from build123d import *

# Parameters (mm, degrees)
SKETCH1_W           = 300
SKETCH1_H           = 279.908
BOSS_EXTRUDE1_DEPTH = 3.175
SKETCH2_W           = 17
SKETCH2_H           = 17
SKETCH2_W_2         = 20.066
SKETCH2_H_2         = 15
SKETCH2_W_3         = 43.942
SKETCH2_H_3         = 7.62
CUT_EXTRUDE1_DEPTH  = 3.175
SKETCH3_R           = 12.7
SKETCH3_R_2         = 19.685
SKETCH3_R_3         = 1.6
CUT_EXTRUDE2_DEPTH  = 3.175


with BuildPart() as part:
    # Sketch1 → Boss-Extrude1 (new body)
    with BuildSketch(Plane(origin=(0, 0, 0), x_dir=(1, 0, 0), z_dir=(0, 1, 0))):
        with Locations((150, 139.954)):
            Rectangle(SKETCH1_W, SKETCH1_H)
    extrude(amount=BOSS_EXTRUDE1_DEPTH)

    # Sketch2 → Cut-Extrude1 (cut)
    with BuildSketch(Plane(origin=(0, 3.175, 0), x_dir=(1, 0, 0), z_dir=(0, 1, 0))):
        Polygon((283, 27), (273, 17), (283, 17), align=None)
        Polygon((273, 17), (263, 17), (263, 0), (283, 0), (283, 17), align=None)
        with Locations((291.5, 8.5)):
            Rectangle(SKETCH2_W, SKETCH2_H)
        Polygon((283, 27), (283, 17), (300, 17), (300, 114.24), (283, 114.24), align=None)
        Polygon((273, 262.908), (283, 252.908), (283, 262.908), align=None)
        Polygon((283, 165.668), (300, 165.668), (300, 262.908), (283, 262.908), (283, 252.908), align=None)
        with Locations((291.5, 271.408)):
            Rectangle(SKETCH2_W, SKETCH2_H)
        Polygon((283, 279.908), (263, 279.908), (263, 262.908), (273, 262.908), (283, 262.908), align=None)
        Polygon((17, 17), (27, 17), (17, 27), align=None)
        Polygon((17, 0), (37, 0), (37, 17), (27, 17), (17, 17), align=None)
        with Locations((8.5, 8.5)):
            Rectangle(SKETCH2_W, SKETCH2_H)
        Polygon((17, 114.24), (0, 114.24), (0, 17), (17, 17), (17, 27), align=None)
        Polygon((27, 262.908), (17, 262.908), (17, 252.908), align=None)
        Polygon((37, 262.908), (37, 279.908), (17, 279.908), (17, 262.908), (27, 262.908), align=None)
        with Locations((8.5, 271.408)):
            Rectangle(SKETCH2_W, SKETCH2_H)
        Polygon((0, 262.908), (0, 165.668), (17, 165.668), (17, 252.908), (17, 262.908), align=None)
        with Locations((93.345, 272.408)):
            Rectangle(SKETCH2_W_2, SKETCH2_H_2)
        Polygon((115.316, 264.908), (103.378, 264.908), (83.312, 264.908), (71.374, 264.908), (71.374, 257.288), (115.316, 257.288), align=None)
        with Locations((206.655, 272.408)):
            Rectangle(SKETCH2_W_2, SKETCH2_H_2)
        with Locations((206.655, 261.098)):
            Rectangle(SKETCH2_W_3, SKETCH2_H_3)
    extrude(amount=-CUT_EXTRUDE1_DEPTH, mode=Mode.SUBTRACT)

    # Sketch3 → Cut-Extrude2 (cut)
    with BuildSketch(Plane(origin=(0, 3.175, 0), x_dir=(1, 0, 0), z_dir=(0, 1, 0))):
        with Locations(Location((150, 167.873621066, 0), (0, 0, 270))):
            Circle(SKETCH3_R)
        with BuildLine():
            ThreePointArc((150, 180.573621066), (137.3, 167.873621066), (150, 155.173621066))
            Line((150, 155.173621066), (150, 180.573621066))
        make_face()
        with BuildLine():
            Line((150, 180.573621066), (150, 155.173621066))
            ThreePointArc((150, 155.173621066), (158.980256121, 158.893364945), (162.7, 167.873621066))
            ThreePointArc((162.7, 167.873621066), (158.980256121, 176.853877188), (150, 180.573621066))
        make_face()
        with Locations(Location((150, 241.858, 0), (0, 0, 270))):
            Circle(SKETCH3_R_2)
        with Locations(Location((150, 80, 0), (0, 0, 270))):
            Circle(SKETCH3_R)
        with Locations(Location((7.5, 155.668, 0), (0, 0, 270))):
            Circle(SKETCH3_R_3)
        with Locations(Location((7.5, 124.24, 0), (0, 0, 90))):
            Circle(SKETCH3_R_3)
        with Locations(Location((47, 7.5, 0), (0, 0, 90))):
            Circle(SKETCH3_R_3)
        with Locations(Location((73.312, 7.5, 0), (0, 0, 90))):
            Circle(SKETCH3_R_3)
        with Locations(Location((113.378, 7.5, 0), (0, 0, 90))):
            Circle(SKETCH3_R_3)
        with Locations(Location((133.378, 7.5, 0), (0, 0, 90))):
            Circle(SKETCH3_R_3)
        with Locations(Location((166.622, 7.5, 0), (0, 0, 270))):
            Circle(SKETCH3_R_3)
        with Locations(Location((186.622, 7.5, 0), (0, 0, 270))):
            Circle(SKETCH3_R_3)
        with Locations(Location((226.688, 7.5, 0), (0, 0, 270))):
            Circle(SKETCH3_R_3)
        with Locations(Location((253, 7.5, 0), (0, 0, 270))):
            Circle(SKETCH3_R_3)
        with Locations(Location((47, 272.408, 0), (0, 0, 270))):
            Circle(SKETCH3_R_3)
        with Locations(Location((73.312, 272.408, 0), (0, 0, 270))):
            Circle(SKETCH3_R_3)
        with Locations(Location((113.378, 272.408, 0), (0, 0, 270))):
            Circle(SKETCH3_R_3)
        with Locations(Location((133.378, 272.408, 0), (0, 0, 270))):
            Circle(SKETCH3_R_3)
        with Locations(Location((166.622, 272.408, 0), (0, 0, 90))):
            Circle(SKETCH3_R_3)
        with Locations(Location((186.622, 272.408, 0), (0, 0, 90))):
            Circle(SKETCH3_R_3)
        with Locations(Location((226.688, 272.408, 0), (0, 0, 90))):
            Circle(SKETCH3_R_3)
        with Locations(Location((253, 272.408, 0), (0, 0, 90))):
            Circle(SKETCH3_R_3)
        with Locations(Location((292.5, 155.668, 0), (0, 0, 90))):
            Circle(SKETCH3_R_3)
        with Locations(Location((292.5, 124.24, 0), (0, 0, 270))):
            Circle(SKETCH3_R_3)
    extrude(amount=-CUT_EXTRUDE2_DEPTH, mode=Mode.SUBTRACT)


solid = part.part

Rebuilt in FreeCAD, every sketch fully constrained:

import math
import FreeCAD as App
import Part
import Sketcher

V = App.Vector
Q = App.Units.Quantity


def add_polygon(sketch, points):
    """Adds a closed chain of lines whose ends are joined by coincident constraints."""
    first, n = sketch.GeometryCount, len(points)
    for a, b in zip(points, points[1:] + points[:1]):
        sketch.addGeometry(Part.LineSegment(App.Vector(*a, 0), App.Vector(*b, 0)), False)
    for i in range(n):
        sketch.addConstraint(Sketcher.Constraint("Coincident", first + i, 2, first + (i + 1) % n, 1))

doc = App.newDocument("Part")
body = doc.addObject("PartDesign::Body", "Body")

sketch1 = body.newObject("Sketcher::SketchObject", "Sketch")
sketch1.AttachmentSupport = (doc.getObject("XZ_Plane"), [""])
sketch1.MapMode = "FlatFace"
add_polygon(sketch1, [(0, -279.908), (0, 0), (300, 0), (300, -279.908)])
sketch1.addConstraint([
    Sketcher.Constraint("Vertical", 0),
    Sketcher.Constraint("Horizontal", 1),
    Sketcher.Constraint("Vertical", 2),
    Sketcher.Constraint("Horizontal", 3),
    Sketcher.Constraint("Coincident", 0, 2, -1, 1),
    Sketcher.Constraint("DistanceY", 0, 1, 0, 2, Q("11.02 in")),
    Sketcher.Constraint("DistanceX", 1, 1, 1, 2, 300.0),
])
pad1 = body.newObject("PartDesign::Pad", "Pad")
pad1.Profile = sketch1
pad1.Length = Q("0.125 in")
pad1.Reversed = True

sketch2 = body.newObject("Sketcher::SketchObject", "Sketch001")
sketch2.AttachmentSupport = (doc.getObject("XZ_Plane"), [""])
sketch2.MapMode = "FlatFace"
sketch2.AttachmentOffset = App.Placement(V(0, 0, -0.125 * 25.4), App.Rotation())
add_polygon(sketch2, [(283, -27), (273, -17), (263, -17), (263, 0), (300, 0), (300, -114.24), (283, -114.24)])
add_polygon(sketch2, [(273, -262.908), (283, -252.908), (283, -165.668), (300, -165.668), (300, -279.908), (263, -279.908), (263, -262.908)])
add_polygon(sketch2, [(27, -17), (17, -27), (17, -114.24), (0, -114.24), (0, 0), (37, 0), (37, -17)])
add_polygon(sketch2, [(17, -252.908), (27, -262.908), (37, -262.908), (37, -279.908), (0, -279.908), (0, -165.668), (17, -165.668)])
add_polygon(sketch2, [(83.312, -279.908), (83.312, -264.908), (71.374, -264.908), (71.374, -257.288), (115.316, -257.288), (115.316, -264.908), (103.378, -264.908), (103.378, -279.908)])
add_polygon(sketch2, [(196.622, -279.908), (196.622, -264.908), (184.684, -264.908), (184.684, -257.288), (228.626, -257.288), (228.626, -264.908), (216.688, -264.908), (216.688, -279.908)])
sketch2.addConstraint([
    Sketcher.Constraint("Horizontal", 1),
    Sketcher.Constraint("Vertical", 2),
    Sketcher.Constraint("Horizontal", 3),
    Sketcher.Constraint("Vertical", 4),
    Sketcher.Constraint("Horizontal", 5),
    Sketcher.Constraint("Vertical", 6),
    Sketcher.Constraint("Vertical", 8),
    Sketcher.Constraint("Horizontal", 9),
    Sketcher.Constraint("Vertical", 10),
    Sketcher.Constraint("Horizontal", 11),
    Sketcher.Constraint("Vertical", 12),
    Sketcher.Constraint("Horizontal", 13),
    Sketcher.Constraint("Vertical", 15),
    Sketcher.Constraint("Horizontal", 16),
    Sketcher.Constraint("Vertical", 17),
    Sketcher.Constraint("Horizontal", 18),
    Sketcher.Constraint("Vertical", 19),
    Sketcher.Constraint("Horizontal", 20),
    Sketcher.Constraint("Horizontal", 22),
    Sketcher.Constraint("Vertical", 23),
    Sketcher.Constraint("Horizontal", 24),
    Sketcher.Constraint("Vertical", 25),
    Sketcher.Constraint("Horizontal", 26),
    Sketcher.Constraint("Vertical", 27),
    Sketcher.Constraint("Vertical", 28),
    Sketcher.Constraint("Horizontal", 29),
    Sketcher.Constraint("Vertical", 30),
    Sketcher.Constraint("Horizontal", 31),
    Sketcher.Constraint("Vertical", 32),
    Sketcher.Constraint("Horizontal", 33),
    Sketcher.Constraint("Vertical", 34),
    Sketcher.Constraint("Horizontal", 35),
    Sketcher.Constraint("Vertical", 36),
    Sketcher.Constraint("Horizontal", 37),
    Sketcher.Constraint("Vertical", 38),
    Sketcher.Constraint("Horizontal", 39),
    Sketcher.Constraint("Vertical", 40),
    Sketcher.Constraint("Horizontal", 41),
    Sketcher.Constraint("Vertical", 42),
    Sketcher.Constraint("Horizontal", 43),
    Sketcher.Constraint("Coincident", 17, 2, -1, 1),
    Sketcher.Constraint("PointOnObject", 2, 2, -1),
    Sketcher.Constraint("PointOnObject", 24, 2, -2),
    Sketcher.Constraint("Perpendicular", 0, 7),
    Sketcher.Constraint("Parallel", 7, 14),
    Sketcher.Constraint("Perpendicular", 14, 21),
    Sketcher.Constraint("Horizontal", 6, 2, 14, 2),
    Sketcher.Constraint("Horizontal", 5, 2, 15, 2),
    Sketcher.Constraint("Horizontal", 1, 2, 19, 2),
    Sketcher.Constraint("Horizontal", 13, 2, 21, 2),
    Sketcher.Constraint("Horizontal", 11, 2, 23, 2),
    Sketcher.Constraint("Horizontal", 9, 2, 25, 2),
    Sketcher.Constraint("Horizontal", 7, 2, 27, 2),
    Sketcher.Constraint("Horizontal", 29, 2, 32, 2),
    Sketcher.Constraint("Horizontal", 24, 2, 34, 2),
    Sketcher.Constraint("Horizontal", 33, 2, 36, 2),
    Sketcher.Constraint("Horizontal", 31, 2, 38, 2),
    Sketcher.Constraint("Horizontal", 37, 2, 40, 2),
    Sketcher.Constraint("Horizontal", 35, 2, 42, 2),
    Sketcher.Constraint("Vertical", 6, 2, 7, 2),
    Sketcher.Constraint("Vertical", 4, 2, 9, 2),
    Sketcher.Constraint("Vertical", 2, 2, 11, 2),
    Sketcher.Constraint("Vertical", 0, 2, 13, 2),
    Sketcher.Constraint("Vertical", 20, 2, 21, 2),
    Sketcher.Constraint("Vertical", 19, 2, 22, 2),
    Sketcher.Constraint("Vertical", 15, 2, 26, 2),
    Sketcher.Constraint("Equal", 9, 16),
    Sketcher.Constraint("Equal", 11, 18),
    Sketcher.Constraint("Equal", 29, 33),
    Sketcher.Constraint("Equal", 33, 37),
    Sketcher.Constraint("Equal", 31, 39),
    Sketcher.Constraint("Equal", 37, 41),
    Sketcher.Constraint("Equal", 26, 2),
    Sketcher.Constraint("Equal", 6, 8),
    Sketcher.Constraint("Equal", 4, 10),
    Sketcher.Constraint("DistanceY", 30, 1, 30, 2, Q("0.3 in")),
    Sketcher.Constraint("DistanceX", 29, 2, 29, 1, Q("0.47 in")),
    Sketcher.Constraint("DistanceX", 31, 1, 31, 2, Q("1.73 in")),
    Sketcher.Constraint("DistanceY", 10, 2, -1, 1, Q("11.02 in")),
    Sketcher.Constraint("DistanceX", -1, 1, 28, 2, Q("3.28 in")),
    Sketcher.Constraint("DistanceX", 1, 2, 1, 1, 10.0),
    Sketcher.Constraint("DistanceX", 3, 1, 3, 2, 37.0),
    Sketcher.Constraint("DistanceX", 5, 2, 5, 1, 17.0),
    Sketcher.Constraint("DistanceY", 4, 2, 4, 1, 114.24),
    Sketcher.Constraint("DistanceY", 28, 1, 28, 2, 15.0),
    Sketcher.Constraint("DistanceX", -1, 1, 0, 2, 273.0),
    Sketcher.Constraint("DistanceX", -1, 1, 36, 2, 196.622),
])
pocket1 = body.newObject("PartDesign::Pocket", "Pocket")
pocket1.Profile = sketch2
pocket1.Length = Q("0.125 in")
pocket1.Reversed = True

sketch3 = body.newObject("Sketcher::SketchObject", "Sketch002")
sketch3.AttachmentSupport = (doc.getObject("XZ_Plane"), [""])
sketch3.MapMode = "FlatFace"
sketch3.AttachmentOffset = App.Placement(V(0, 0, -0.125 * 25.4), App.Rotation())
sketch3.addGeometry([
    Part.ArcOfCircle(Part.Circle(V(150, -167.873621, 0), V(0, 0, 1), 12.7), math.radians(0), math.radians(90)),
    Part.ArcOfCircle(Part.Circle(V(150, -167.873621, 0), V(0, 0, 1), 12.7), math.radians(90), math.radians(360)),
    Part.Circle(V(150, -241.858, 0), V(0, 0, 1), 19.685),
    Part.Circle(V(150, -80, 0), V(0, 0, 1), 12.7),
    Part.Circle(V(7.5, -155.668, 0), V(0, 0, 1), 1.6),
    Part.Circle(V(7.5, -124.24, 0), V(0, 0, 1), 1.6),
    Part.Circle(V(47, -7.5, 0), V(0, 0, 1), 1.6),
    Part.Circle(V(73.312, -7.5, 0), V(0, 0, 1), 1.6),
    Part.Circle(V(113.378, -7.5, 0), V(0, 0, 1), 1.6),
    Part.Circle(V(133.378, -7.5, 0), V(0, 0, 1), 1.6),
    Part.Circle(V(166.622, -7.5, 0), V(0, 0, 1), 1.6),
    Part.Circle(V(186.622, -7.5, 0), V(0, 0, 1), 1.6),
    Part.Circle(V(226.688, -7.5, 0), V(0, 0, 1), 1.6),
    Part.Circle(V(253, -7.5, 0), V(0, 0, 1), 1.6),
    Part.Circle(V(47, -272.408, 0), V(0, 0, 1), 1.6),
    Part.Circle(V(73.312, -272.408, 0), V(0, 0, 1), 1.6),
    Part.Circle(V(113.378, -272.408, 0), V(0, 0, 1), 1.6),
    Part.Circle(V(133.378, -272.408, 0), V(0, 0, 1), 1.6),
    Part.Circle(V(166.622, -272.408, 0), V(0, 0, 1), 1.6),
    Part.Circle(V(186.622, -272.408, 0), V(0, 0, 1), 1.6),
    Part.Circle(V(226.688, -272.408, 0), V(0, 0, 1), 1.6),
    Part.Circle(V(253, -272.408, 0), V(0, 0, 1), 1.6),
    Part.Circle(V(292.5, -155.668, 0), V(0, 0, 1), 1.6),
    Part.Circle(V(292.5, -124.24, 0), V(0, 0, 1), 1.6),
], False)
sketch3.addConstraint([
    Sketcher.Constraint("Tangent", 0, 1, 1, 2),
    Sketcher.Constraint("Coincident", 1, 1, 0, 2),
    Sketcher.Constraint("Equal", 1, 3),
    Sketcher.Constraint("Equal", 4, 5),
    Sketcher.Constraint("Equal", 5, 6),
    Sketcher.Constraint("Equal", 6, 7),
    Sketcher.Constraint("Equal", 7, 8),
    Sketcher.Constraint("Equal", 8, 9),
    Sketcher.Constraint("Equal", 9, 10),
    Sketcher.Constraint("Equal", 10, 11),
    Sketcher.Constraint("Equal", 11, 12),
    Sketcher.Constraint("Equal", 12, 13),
    Sketcher.Constraint("Equal", 13, 14),
    Sketcher.Constraint("Equal", 14, 15),
    Sketcher.Constraint("Equal", 15, 16),
    Sketcher.Constraint("Equal", 16, 17),
    Sketcher.Constraint("Equal", 17, 18),
    Sketcher.Constraint("Equal", 18, 19),
    Sketcher.Constraint("Equal", 19, 20),
    Sketcher.Constraint("Equal", 20, 21),
    Sketcher.Constraint("Equal", 21, 22),
    Sketcher.Constraint("Equal", 22, 23),
    Sketcher.Constraint("Horizontal", 6, 3, 7, 3),
    Sketcher.Constraint("Horizontal", 7, 3, 8, 3),
    Sketcher.Constraint("Horizontal", 8, 3, 9, 3),
    Sketcher.Constraint("Horizontal", 9, 3, 10, 3),
    Sketcher.Constraint("Horizontal", 10, 3, 11, 3),
    Sketcher.Constraint("Horizontal", 11, 3, 12, 3),
    Sketcher.Constraint("Horizontal", 12, 3, 13, 3),
    Sketcher.Constraint("Horizontal", 14, 3, 15, 3),
    Sketcher.Constraint("Horizontal", 15, 3, 16, 3),
    Sketcher.Constraint("Horizontal", 16, 3, 17, 3),
    Sketcher.Constraint("Horizontal", 17, 3, 18, 3),
    Sketcher.Constraint("Horizontal", 18, 3, 19, 3),
    Sketcher.Constraint("Horizontal", 19, 3, 20, 3),
    Sketcher.Constraint("Horizontal", 20, 3, 21, 3),
    Sketcher.Constraint("Horizontal", 4, 3, 22, 3),
    Sketcher.Constraint("Horizontal", 5, 3, 23, 3),
    Sketcher.Constraint("Horizontal", 1, 3, 0, 1),
    Sketcher.Constraint("Vertical", 1, 3, 2, 3),
    Sketcher.Constraint("Vertical", 2, 3, 3, 3),
    Sketcher.Constraint("Vertical", 4, 3, 5, 3),
    Sketcher.Constraint("Vertical", 6, 3, 14, 3),
    Sketcher.Constraint("Vertical", 7, 3, 15, 3),
    Sketcher.Constraint("Vertical", 8, 3, 16, 3),
    Sketcher.Constraint("Vertical", 9, 3, 17, 3),
    Sketcher.Constraint("Vertical", 10, 3, 18, 3),
    Sketcher.Constraint("Vertical", 11, 3, 19, 3),
    Sketcher.Constraint("Vertical", 12, 3, 20, 3),
    Sketcher.Constraint("Vertical", 13, 3, 21, 3),
    Sketcher.Constraint("Vertical", 22, 3, 23, 3),
    Sketcher.Constraint("Vertical", 3, 3, 1, 1),
    Sketcher.Constraint("Diameter", 3, Q("1 in")),
    Sketcher.Constraint("Diameter", 2, Q("1.55 in")),
    Sketcher.Constraint("Diameter", 4, 3.2),
    Sketcher.Constraint("DistanceX", -1, 1, 0, 3, 150.0),
    Sketcher.Constraint("DistanceY", 2, 3, -1, 1, 241.858),
    Sketcher.Constraint("DistanceY", 3, 3, -1, 1, 80.0),
    Sketcher.Constraint("DistanceX", -1, 1, 4, 3, 7.5),
    Sketcher.Constraint("DistanceY", 4, 3, -1, 1, 155.668),
    Sketcher.Constraint("DistanceY", 5, 3, -1, 1, 124.24),
    Sketcher.Constraint("DistanceX", -1, 1, 6, 3, 47.0),
    Sketcher.Constraint("DistanceY", 6, 3, -1, 1, 7.5),
    Sketcher.Constraint("DistanceX", -1, 1, 7, 3, 73.312),
    Sketcher.Constraint("DistanceX", -1, 1, 8, 3, 113.378),
    Sketcher.Constraint("DistanceX", -1, 1, 9, 3, 133.378),
    Sketcher.Constraint("DistanceX", -1, 1, 10, 3, 166.622),
    Sketcher.Constraint("DistanceX", -1, 1, 11, 3, 186.622),
    Sketcher.Constraint("DistanceX", -1, 1, 12, 3, 226.688),
    Sketcher.Constraint("DistanceX", -1, 1, 13, 3, 253.0),
    Sketcher.Constraint("DistanceY", 14, 3, -1, 1, 272.408),
    Sketcher.Constraint("DistanceX", -1, 1, 22, 3, 292.5),
    Sketcher.Constraint("DistanceY", 0, 3, -1, 1, 167.873621),
])
pocket2 = body.newObject("PartDesign::Pocket", "Pocket001")
pocket2.Profile = sketch3
pocket2.Length = Q("0.125 in")
pocket2.Reversed = True

doc.recompute()
